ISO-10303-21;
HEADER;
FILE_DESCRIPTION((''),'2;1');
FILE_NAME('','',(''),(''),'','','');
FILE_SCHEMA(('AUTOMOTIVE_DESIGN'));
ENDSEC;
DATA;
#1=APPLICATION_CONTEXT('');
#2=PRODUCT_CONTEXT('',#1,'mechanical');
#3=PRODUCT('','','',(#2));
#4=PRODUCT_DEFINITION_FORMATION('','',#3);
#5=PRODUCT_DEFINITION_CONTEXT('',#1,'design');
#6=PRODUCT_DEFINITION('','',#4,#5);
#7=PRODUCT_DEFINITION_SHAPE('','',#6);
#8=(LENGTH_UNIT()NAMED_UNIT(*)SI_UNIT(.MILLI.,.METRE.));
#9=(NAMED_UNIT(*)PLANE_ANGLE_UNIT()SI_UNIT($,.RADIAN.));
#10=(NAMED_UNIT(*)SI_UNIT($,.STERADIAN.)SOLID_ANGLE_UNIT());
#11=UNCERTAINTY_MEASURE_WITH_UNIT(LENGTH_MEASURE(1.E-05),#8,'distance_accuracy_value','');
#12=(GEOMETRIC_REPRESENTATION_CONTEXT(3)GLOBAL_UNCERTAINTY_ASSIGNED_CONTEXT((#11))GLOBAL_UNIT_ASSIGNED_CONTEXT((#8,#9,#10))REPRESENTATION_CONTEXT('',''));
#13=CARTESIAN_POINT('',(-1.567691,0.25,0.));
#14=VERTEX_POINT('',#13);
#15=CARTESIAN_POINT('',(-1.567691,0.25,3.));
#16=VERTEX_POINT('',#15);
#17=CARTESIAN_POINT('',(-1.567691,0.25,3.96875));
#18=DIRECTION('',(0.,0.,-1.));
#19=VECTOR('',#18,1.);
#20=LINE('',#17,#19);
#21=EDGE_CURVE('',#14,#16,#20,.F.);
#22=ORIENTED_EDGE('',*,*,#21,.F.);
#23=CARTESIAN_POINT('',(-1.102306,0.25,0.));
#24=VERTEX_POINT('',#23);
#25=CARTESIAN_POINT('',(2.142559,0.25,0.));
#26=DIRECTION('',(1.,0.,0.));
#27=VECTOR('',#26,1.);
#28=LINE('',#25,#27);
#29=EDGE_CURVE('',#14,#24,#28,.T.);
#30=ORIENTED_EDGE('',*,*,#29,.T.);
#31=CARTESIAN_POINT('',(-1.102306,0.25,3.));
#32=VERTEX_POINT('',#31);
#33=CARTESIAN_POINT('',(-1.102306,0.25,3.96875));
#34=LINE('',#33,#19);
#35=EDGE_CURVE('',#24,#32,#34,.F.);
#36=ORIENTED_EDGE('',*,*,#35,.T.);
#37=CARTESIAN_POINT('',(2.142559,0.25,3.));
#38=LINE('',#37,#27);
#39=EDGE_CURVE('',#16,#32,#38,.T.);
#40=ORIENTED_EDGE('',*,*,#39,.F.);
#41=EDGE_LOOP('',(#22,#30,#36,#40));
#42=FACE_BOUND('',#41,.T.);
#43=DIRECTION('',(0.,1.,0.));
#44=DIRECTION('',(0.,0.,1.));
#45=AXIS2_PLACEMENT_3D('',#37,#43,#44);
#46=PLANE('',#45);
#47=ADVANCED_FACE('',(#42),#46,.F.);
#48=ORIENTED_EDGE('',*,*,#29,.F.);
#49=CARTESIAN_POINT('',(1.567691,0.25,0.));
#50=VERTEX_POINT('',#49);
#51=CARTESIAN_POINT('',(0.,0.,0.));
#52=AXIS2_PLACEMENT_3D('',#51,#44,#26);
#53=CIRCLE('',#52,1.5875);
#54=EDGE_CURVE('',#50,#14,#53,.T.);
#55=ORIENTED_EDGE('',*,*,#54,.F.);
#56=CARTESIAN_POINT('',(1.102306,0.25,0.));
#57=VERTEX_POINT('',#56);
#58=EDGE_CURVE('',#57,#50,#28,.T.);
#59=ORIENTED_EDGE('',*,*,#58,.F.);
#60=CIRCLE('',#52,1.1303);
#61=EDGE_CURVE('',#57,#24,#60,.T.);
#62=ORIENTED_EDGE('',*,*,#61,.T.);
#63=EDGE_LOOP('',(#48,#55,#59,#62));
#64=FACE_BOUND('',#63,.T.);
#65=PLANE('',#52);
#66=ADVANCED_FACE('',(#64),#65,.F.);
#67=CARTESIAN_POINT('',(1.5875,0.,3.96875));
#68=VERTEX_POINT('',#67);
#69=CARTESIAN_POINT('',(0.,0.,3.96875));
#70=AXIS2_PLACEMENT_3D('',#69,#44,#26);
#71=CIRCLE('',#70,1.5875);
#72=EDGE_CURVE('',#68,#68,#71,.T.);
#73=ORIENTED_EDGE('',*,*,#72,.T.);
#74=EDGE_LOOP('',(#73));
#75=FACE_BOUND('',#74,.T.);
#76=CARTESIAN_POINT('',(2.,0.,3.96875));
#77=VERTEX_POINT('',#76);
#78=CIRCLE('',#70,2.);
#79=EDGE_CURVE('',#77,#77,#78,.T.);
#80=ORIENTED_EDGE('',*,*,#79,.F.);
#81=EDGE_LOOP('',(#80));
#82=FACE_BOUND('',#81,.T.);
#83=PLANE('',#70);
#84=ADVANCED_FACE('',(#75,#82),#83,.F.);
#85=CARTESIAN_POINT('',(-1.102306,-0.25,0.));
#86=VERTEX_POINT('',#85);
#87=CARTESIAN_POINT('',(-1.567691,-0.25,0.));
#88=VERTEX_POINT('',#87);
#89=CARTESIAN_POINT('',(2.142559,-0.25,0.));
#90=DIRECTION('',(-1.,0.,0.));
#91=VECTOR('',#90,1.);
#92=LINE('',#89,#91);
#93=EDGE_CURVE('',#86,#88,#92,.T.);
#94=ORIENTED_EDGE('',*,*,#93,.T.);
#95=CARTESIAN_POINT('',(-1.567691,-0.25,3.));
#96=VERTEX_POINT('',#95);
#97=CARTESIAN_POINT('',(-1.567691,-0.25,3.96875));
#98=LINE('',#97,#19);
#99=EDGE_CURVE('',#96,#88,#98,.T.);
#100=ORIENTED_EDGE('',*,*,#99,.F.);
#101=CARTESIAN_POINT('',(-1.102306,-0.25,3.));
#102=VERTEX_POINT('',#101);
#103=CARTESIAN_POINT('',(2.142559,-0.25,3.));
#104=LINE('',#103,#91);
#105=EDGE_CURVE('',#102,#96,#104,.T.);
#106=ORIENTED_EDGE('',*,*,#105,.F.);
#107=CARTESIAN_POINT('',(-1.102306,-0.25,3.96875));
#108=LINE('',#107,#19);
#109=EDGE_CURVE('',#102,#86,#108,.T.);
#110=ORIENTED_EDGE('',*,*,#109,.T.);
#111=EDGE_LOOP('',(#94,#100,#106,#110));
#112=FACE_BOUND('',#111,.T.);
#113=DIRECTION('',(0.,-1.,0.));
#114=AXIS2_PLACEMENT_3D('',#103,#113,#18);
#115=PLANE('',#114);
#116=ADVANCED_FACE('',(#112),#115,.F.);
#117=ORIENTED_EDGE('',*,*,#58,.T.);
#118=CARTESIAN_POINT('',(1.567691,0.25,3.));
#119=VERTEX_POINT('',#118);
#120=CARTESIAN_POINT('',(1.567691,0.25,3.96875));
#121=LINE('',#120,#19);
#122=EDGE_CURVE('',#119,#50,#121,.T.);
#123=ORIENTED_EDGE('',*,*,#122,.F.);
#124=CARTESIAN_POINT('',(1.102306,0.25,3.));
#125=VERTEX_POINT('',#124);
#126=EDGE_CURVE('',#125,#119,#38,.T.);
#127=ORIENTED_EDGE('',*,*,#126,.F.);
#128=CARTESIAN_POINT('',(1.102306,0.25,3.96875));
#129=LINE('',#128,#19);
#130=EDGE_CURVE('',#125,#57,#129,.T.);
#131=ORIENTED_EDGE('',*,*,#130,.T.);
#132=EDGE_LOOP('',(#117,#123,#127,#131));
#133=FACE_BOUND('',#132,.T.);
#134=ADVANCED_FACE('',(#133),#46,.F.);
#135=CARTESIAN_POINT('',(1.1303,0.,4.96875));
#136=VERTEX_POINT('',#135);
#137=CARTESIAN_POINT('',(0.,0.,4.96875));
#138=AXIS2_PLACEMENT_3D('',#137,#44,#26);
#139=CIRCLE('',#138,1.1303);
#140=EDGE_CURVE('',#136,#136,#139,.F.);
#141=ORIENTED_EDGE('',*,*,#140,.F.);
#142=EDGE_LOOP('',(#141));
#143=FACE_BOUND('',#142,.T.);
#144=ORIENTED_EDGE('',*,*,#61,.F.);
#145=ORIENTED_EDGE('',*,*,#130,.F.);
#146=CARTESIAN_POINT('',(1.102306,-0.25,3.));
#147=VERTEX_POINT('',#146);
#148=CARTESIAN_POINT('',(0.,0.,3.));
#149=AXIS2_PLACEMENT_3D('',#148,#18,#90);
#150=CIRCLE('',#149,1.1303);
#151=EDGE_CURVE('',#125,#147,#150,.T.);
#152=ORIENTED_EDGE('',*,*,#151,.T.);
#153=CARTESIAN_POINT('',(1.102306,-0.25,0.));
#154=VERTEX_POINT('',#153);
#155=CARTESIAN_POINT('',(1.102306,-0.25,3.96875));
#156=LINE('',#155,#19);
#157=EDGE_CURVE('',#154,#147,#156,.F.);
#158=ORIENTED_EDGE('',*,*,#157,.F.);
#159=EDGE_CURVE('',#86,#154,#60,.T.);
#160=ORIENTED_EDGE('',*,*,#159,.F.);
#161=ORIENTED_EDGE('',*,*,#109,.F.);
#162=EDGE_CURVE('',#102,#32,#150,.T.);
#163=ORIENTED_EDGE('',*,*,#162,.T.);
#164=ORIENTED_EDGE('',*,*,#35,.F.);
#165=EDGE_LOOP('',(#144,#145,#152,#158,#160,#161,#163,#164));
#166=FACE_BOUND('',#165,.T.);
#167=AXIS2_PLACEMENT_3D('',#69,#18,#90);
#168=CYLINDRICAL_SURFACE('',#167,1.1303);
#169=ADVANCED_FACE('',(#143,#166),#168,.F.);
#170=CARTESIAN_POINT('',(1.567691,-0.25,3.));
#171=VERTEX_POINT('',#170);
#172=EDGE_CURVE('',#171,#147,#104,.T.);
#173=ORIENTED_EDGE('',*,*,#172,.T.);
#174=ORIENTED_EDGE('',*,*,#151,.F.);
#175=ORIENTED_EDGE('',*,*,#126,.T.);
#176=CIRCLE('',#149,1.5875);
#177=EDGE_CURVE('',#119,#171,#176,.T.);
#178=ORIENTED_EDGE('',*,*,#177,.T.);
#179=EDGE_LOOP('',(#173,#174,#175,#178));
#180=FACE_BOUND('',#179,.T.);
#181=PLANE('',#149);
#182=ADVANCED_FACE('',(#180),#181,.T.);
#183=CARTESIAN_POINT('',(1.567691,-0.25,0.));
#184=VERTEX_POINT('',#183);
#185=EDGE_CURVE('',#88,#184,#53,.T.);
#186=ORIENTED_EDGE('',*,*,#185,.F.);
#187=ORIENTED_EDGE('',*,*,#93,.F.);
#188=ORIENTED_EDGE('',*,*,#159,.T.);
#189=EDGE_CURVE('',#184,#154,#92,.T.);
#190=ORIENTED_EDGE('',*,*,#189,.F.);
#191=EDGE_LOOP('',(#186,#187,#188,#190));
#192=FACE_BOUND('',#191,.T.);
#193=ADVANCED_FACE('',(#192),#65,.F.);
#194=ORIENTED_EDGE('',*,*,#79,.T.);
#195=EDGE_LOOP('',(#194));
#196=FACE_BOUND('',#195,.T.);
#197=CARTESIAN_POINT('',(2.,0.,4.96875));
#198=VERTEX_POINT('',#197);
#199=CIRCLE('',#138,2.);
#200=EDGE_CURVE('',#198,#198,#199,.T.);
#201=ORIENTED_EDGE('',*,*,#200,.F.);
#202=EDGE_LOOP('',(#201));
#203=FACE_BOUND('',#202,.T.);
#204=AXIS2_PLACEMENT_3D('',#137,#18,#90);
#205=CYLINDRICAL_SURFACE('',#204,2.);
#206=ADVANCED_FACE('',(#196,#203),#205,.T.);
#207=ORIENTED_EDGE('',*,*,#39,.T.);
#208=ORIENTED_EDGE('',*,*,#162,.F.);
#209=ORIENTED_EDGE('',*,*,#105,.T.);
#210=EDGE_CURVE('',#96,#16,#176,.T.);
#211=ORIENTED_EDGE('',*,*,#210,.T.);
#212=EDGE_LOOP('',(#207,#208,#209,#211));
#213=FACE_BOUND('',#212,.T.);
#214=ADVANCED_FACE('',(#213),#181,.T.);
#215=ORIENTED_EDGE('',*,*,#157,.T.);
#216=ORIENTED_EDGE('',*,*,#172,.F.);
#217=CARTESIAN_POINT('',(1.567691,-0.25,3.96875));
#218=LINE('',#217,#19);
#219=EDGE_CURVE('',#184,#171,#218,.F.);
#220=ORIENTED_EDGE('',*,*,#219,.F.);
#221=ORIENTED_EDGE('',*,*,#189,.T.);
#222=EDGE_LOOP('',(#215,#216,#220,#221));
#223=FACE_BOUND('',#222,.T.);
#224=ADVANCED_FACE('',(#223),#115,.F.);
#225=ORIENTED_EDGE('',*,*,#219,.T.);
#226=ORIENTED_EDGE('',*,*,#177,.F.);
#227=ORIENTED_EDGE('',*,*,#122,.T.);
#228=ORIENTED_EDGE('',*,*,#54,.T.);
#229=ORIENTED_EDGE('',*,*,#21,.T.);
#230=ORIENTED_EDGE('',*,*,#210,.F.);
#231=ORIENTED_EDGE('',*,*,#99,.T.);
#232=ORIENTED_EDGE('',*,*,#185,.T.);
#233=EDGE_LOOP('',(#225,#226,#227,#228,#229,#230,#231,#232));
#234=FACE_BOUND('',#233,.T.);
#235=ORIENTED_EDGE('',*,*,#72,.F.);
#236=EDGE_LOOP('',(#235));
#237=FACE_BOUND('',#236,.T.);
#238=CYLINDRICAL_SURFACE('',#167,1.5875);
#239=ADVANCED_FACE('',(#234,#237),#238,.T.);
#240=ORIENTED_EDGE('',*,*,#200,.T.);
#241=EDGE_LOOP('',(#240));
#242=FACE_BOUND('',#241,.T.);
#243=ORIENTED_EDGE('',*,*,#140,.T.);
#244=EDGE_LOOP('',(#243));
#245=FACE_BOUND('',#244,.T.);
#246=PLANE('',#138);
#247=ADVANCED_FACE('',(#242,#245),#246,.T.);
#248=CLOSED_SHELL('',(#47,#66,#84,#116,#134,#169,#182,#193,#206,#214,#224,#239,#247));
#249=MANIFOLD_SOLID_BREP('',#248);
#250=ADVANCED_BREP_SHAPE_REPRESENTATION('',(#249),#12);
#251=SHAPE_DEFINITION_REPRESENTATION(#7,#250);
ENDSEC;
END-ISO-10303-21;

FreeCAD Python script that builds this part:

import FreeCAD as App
import Part
import Sketcher
from FreeCAD import Vector
Q = App.Units.Quantity

doc = App.newDocument("Part")
body = doc.addObject("PartDesign::Body", "Body")

# Sketch on XY plane
sketch1 = body.newObject("Sketcher::SketchObject", "Sketch")
sketch1.AttachmentSupport = (doc.getObject("XY_Plane"), [""])
sketch1.MapMode = "FlatFace"
sketch1.addGeometry([
    Part.Circle(Vector(0, 0, 0), Vector(0, 0, 1), 1.6),
    Part.Circle(Vector(0, 0, 0), Vector(0, 0, 1), 1.1),
], False)
sketch1.addConstraint([
    Sketcher.Constraint("Coincident", 0, 3, -1, 1),
    Sketcher.Constraint("Coincident", 1, 3, -1, 1),
    Sketcher.Constraint("Diameter", 0, Q("3.175 mm")),
    Sketcher.Constraint("Diameter", 1, Q("2.2606 mm")),
])
pad1 = body.newObject("PartDesign::Pad", "Pad")
pad1.Profile = sketch1
pad1.Length = 3.96875

# Sketch on XY plane
sketch2 = body.newObject("Sketcher::SketchObject", "Sketch001")
sketch2.AttachmentSupport = (doc.getObject("XY_Plane"), [""])
sketch2.MapMode = "FlatFace"
sketch2.AttachmentOffset = App.Placement(Vector(0, 0, 3.96875), App.Rotation())
sketch2.addGeometry([
    Part.Circle(Vector(0, 0, 0), Vector(0, 0, 1), 2),
    Part.Circle(Vector(0, 0, 0), Vector(0, 0, 1), 1.1),
], False)
sketch2.addConstraint([
    Sketcher.Constraint("Coincident", 0, 3, -1, 1),
    Sketcher.Constraint("Coincident", 1, 3, -1, 1),
    Sketcher.Constraint("Diameter", 0, Q("4 mm")),
    Sketcher.Constraint("Diameter", 1, Q("2.2606 mm")),
])
pad2 = body.newObject("PartDesign::Pad", "Pad001")
pad2.Profile = sketch2
pad2.Length = 1

# Sketch on XY plane
sketch3 = body.newObject("Sketcher::SketchObject", "Sketch002")
sketch3.AttachmentSupport = (doc.getObject("XY_Plane"), [""])
sketch3.MapMode = "FlatFace"
sketch3.addGeometry([
    Part.LineSegment(Vector(2.1, 0.2, 0), Vector(2.1, -0.2, 0)),
    Part.LineSegment(Vector(2.1, -0.2, 0), Vector(-2.1, -0.2, 0)),
    Part.LineSegment(Vector(-2.1, -0.2, 0), Vector(-2.1, 0.2, 0)),
    Part.LineSegment(Vector(-2.1, 0.2, 0), Vector(2.1, 0.2, 0)),
], False)
sketch3.addConstraint([
    Sketcher.Constraint("Coincident", 0, 2, 1, 1),
    Sketcher.Constraint("Coincident", 1, 2, 2, 1),
    Sketcher.Constraint("Coincident", 2, 2, 3, 1),
    Sketcher.Constraint("Coincident", 3, 2, 0, 1),
    Sketcher.Constraint("Vertical", 0),
    Sketcher.Constraint("Horizontal", 1),
    Sketcher.Constraint("Vertical", 2),
    Sketcher.Constraint("Horizontal", 3),
    Sketcher.Constraint("Symmetric", 0, 2, 2, 2, -1, 1),
    Sketcher.Constraint("DistanceY", 0, 2, 0, 1, Q("0.5 mm")),
    Sketcher.Constraint("DistanceX", 1, 2, 1, 1, Q("4.285117 mm")),
])
pocket1 = body.newObject("PartDesign::Pocket", "Pocket")
pocket1.Profile = sketch3
pocket1.Length = 3
pocket1.Reversed = True

doc.recompute()
